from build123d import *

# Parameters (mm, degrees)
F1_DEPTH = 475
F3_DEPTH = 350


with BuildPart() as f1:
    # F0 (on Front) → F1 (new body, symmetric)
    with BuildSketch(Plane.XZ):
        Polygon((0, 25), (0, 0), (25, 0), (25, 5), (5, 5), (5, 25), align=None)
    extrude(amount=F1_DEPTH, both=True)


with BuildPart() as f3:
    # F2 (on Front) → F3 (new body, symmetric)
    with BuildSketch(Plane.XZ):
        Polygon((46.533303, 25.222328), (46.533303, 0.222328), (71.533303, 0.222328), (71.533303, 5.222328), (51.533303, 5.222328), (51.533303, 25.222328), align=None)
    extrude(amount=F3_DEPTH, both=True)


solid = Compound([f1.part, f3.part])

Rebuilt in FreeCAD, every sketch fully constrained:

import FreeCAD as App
import Part
import Sketcher
from FreeCAD import Vector

doc = App.newDocument("Part")
body = doc.addObject("PartDesign::Body", "Body")

sketch1 = body.newObject("Sketcher::SketchObject", "Sketch")
sketch1.AttachmentSupport = (doc.getObject("XZ_Plane"), [""])
sketch1.MapMode = "FlatFace"
sketch1.addGeometry(Part.LineSegment(Vector(0, 25, 0), Vector(0, 0, 0)), False)
sketch1.addGeometry(Part.LineSegment(Vector(0, 0, 0), Vector(25, 0, 0)), False)
sketch1.addGeometry(Part.LineSegment(Vector(25, 0, 0), Vector(25, 5, 0)), False)
sketch1.addGeometry(Part.LineSegment(Vector(25, 5, 0), Vector(5, 5, 0)), False)
sketch1.addGeometry(Part.LineSegment(Vector(5, 5, 0), Vector(5, 25, 0)), False)
sketch1.addGeometry(Part.LineSegment(Vector(5, 25, 0), Vector(0, 25, 0)), False)
sketch1.addConstraint(Sketcher.Constraint("Coincident", 0, 2, 1, 1))
sketch1.addConstraint(Sketcher.Constraint("Coincident", 1, 2, 2, 1))
sketch1.addConstraint(Sketcher.Constraint("Coincident", 2, 2, 3, 1))
sketch1.addConstraint(Sketcher.Constraint("Coincident", 3, 2, 4, 1))
sketch1.addConstraint(Sketcher.Constraint("Coincident", 4, 2, 5, 1))
sketch1.addConstraint(Sketcher.Constraint("Coincident", 5, 2, 0, 1))
sketch1.addConstraint(Sketcher.Constraint("Vertical", 0))
sketch1.addConstraint(Sketcher.Constraint("Horizontal", 1))
sketch1.addConstraint(Sketcher.Constraint("Vertical", 2))
sketch1.addConstraint(Sketcher.Constraint("Horizontal", 3))
sketch1.addConstraint(Sketcher.Constraint("Vertical", 4))
sketch1.addConstraint(Sketcher.Constraint("Horizontal", 5))
sketch1.addConstraint(Sketcher.Constraint("Coincident", 0, 2, -1, 1))
sketch1.addConstraint(Sketcher.Constraint("Equal", 1, 0))
sketch1.addConstraint(Sketcher.Constraint("Equal", 5, 2))
sketch1.addConstraint(Sketcher.Constraint("DistanceX", 1, 1, 1, 2, 25.0))
sketch1.addConstraint(Sketcher.Constraint("DistanceX", 3, 2, 3, 1, 20.0))
pad1 = body.newObject("PartDesign::Pad", "Pad")
pad1.Profile = sketch1
pad1.Length = 950
pad1.Midplane = True
body2 = doc.addObject("PartDesign::Body", "Body001")

sketch2 = body2.newObject("Sketcher::SketchObject", "Sketch001")
sketch2.AttachmentSupport = (doc.getObject("XZ_Plane001"), [""])
sketch2.MapMode = "FlatFace"
sketch2.addGeometry(Part.LineSegment(Vector(47, 25, 0), Vector(47, 0, 0)), False)
sketch2.addGeometry(Part.LineSegment(Vector(47, 0, 0), Vector(72, 0, 0)), False)
sketch2.addGeometry(Part.LineSegment(Vector(72, 0, 0), Vector(72, 5, 0)), False)
sketch2.addGeometry(Part.LineSegment(Vector(72, 5, 0), Vector(52, 5, 0)), False)
sketch2.addGeometry(Part.LineSegment(Vector(52, 5, 0), Vector(52, 25, 0)), False)
sketch2.addGeometry(Part.LineSegment(Vector(52, 25, 0), Vector(47, 25, 0)), False)
sketch2.addConstraint(Sketcher.Constraint("Coincident", 0, 2, 1, 1))
sketch2.addConstraint(Sketcher.Constraint("Coincident", 1, 2, 2, 1))
sketch2.addConstraint(Sketcher.Constraint("Coincident", 2, 2, 3, 1))
sketch2.addConstraint(Sketcher.Constraint("Coincident", 3, 2, 4, 1))
sketch2.addConstraint(Sketcher.Constraint("Coincident", 4, 2, 5, 1))
sketch2.addConstraint(Sketcher.Constraint("Coincident", 5, 2, 0, 1))
sketch2.addConstraint(Sketcher.Constraint("Vertical", 0))
sketch2.addConstraint(Sketcher.Constraint("Horizontal", 1))
sketch2.addConstraint(Sketcher.Constraint("Vertical", 2))
sketch2.addConstraint(Sketcher.Constraint("Horizontal", 3))
sketch2.addConstraint(Sketcher.Constraint("Vertical", 4))
sketch2.addConstraint(Sketcher.Constraint("Horizontal", 5))
sketch2.addConstraint(Sketcher.Constraint("Equal", 1, 0))
sketch2.addConstraint(Sketcher.Constraint("Equal", 5, 2))
sketch2.addConstraint(Sketcher.Constraint("DistanceX", 1, 1, 1, 2, 25.0))
sketch2.addConstraint(Sketcher.Constraint("DistanceX", 3, 2, 3, 1, 20.0))
sketch2.addConstraint(Sketcher.Constraint("DistanceY", -1, 1, 4, 2, 25.222328))
sketch2.addConstraint(Sketcher.Constraint("DistanceX", -1, 1, 0, 2, 46.533303))
pad2 = body2.newObject("PartDesign::Pad", "Pad001")
pad2.Profile = sketch2
pad2.Length = 700
pad2.Midplane = True

doc.recompute()
